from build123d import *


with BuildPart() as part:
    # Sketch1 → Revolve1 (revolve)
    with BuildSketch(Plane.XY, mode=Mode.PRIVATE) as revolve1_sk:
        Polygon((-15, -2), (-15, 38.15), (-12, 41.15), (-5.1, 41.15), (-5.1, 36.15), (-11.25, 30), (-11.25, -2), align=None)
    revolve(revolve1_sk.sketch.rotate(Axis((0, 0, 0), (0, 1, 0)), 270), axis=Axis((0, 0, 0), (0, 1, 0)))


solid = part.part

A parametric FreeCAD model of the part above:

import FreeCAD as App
import Part
import Sketcher
Q = App.Units.Quantity

doc = App.newDocument("Part")
body = doc.addObject("PartDesign::Body", "Body")

# Sketch on XY plane
sketch1 = doc.addObject("Sketcher::SketchObject", "Sketch")
body.addObject(sketch1)
sketch1.AttachmentSupport = (doc.XY_Plane, [""])
sketch1.MapMode = "FlatFace"
sketch1.addGeometry([
    Part.LineSegment(App.Vector(-15, 38.1, 0), App.Vector(-15, -2, 0)),  # 0
    Part.LineSegment(App.Vector(-15, -2, 0), App.Vector(-11.2, -2, 0)),  # 1
    Part.LineSegment(App.Vector(-11.2, -2, 0), App.Vector(-11.2, 30, 0)),  # 2
    Part.LineSegment(App.Vector(-11.2, 30, 0), App.Vector(-5.1, 36.1, 0)),  # 3
    Part.LineSegment(App.Vector(-5.1, 36.1, 0), App.Vector(-5.1, 41.1, 0)),  # 4
    Part.LineSegment(App.Vector(-5.1, 41.1, 0), App.Vector(-12, 41.1, 0)),  # 5
    Part.LineSegment(App.Vector(-12, 41.1, 0), App.Vector(-15, 38.1, 0)),  # 6
], False)
sketch1.addConstraint([
    Sketcher.Constraint("Coincident", 0, 2, 1, 1),
    Sketcher.Constraint("Coincident", 1, 2, 2, 1),
    Sketcher.Constraint("Coincident", 2, 2, 3, 1),
    Sketcher.Constraint("Coincident", 3, 2, 4, 1),
    Sketcher.Constraint("Coincident", 4, 2, 5, 1),
    Sketcher.Constraint("Coincident", 5, 2, 6, 1),
    Sketcher.Constraint("Coincident", 6, 2, 0, 1),
    Sketcher.Constraint("Vertical", 0),
    Sketcher.Constraint("Horizontal", 1),
    Sketcher.Constraint("Vertical", 2),
    Sketcher.Constraint("Vertical", 4),
    Sketcher.Constraint("Horizontal", 5),
    Sketcher.Constraint("Parallel", 3, 6),
    Sketcher.Constraint("DistanceY", 2, 1, 2, 2, 32.0),
    Sketcher.Constraint("DistanceY", 4, 1, 4, 2, 5.0),
    Sketcher.Constraint("Angle", 3, Q("45 deg")),
    Sketcher.Constraint("DistanceX", 5, 2, 5, 1, 6.9),
    Sketcher.Constraint("DistanceX", 0, 2, -1, 1, 15.0),
    Sketcher.Constraint("DistanceY", 0, 2, -1, 1, 2.0),
    Sketcher.Constraint("DistanceX", 5, 2, -1, 1, 12.0),
    Sketcher.Constraint("DistanceX", 1, 1, 1, 2, 3.75),
])
revolution = doc.addObject("PartDesign::Revolution", "Revolution")
body.addObject(revolution)
revolution.Profile = sketch1
revolution.ReferenceAxis = (sketch1, ["V_Axis"])
revolution.Angle = 360

doc.recompute()
